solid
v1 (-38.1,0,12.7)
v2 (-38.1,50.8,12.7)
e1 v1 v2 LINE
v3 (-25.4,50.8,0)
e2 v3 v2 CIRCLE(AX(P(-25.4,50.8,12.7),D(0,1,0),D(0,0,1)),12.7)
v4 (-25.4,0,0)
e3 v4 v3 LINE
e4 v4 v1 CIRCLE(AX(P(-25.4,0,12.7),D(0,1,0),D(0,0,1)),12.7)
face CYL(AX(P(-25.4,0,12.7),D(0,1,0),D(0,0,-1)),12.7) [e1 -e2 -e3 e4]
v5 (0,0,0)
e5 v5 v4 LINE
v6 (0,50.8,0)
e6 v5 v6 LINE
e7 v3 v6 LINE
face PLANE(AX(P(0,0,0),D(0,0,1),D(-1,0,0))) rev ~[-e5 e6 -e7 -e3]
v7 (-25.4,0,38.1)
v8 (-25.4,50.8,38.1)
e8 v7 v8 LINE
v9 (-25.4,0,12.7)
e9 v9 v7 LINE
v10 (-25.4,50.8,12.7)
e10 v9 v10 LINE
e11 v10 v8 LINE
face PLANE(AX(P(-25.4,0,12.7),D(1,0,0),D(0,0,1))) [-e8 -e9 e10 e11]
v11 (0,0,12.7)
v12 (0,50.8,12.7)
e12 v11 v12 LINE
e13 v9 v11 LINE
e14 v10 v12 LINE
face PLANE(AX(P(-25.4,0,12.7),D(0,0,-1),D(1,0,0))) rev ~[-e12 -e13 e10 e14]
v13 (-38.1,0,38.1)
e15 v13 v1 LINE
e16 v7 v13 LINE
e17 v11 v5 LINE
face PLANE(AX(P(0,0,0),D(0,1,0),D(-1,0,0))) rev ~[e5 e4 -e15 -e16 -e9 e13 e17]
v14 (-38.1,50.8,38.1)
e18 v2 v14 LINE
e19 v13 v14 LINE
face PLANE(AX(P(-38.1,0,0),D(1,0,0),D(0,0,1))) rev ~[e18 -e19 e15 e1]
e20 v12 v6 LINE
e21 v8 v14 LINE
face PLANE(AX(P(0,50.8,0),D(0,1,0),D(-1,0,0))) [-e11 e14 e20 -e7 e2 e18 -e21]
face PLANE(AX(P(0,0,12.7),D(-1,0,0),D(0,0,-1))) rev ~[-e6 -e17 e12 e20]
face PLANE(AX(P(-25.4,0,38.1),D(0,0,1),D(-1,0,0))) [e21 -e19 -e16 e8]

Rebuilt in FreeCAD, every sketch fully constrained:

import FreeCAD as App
import Part
import Sketcher

V = App.Vector
Q = App.Units.Quantity


def edges_at(feature, points):
    """Names of the edges that pass closest to the given points."""
    edges = feature.Shape.Edges
    near = lambda p: min(range(len(edges)), key=lambda i: edges[i].distToShape(Part.Vertex(*p))[0])
    return sorted({f"Edge{near(p) + 1}" for p in points})

doc = App.newDocument("Part")
params = doc.addObject("Spreadsheet::Sheet", "Params")
for row, (alias, value) in enumerate([
    ("sketch1_width", "1.5 in"),
    ("sketch1_width2", "0.5 in"),
    ("pad1_length", "2 in"),
    ("fillet_radius", "0.5 in"),
], start=1):
    params.set(f"A{row}", alias)
    params.set(f"B{row}", "=" + value)
    params.setAlias(f"B{row}", alias)

body = doc.addObject("PartDesign::Body", "Body")

sketch1 = doc.addObject("Sketcher::SketchObject", "Sketch")
body.addObject(sketch1)
sketch1.AttachmentSupport = (doc.XZ_Plane, [""])
sketch1.MapMode = "FlatFace"
sketch1.addGeometry([
    Part.LineSegment(V(0, 12.7, 0), V(0, 0, 0)),
    Part.LineSegment(V(0, 0, 0), V(-38.1, 0, 0)),
    Part.LineSegment(V(-38.1, 0, 0), V(-38.1, 38.1, 0)),
    Part.LineSegment(V(-38.1, 38.1, 0), V(-25.4, 38.1, 0)),
    Part.LineSegment(V(-25.4, 38.1, 0), V(-25.4, 12.7, 0)),
    Part.LineSegment(V(-25.4, 12.7, 0), V(0, 12.7, 0)),
], False)
sketch1.addConstraint([
    Sketcher.Constraint("Coincident", 0, 2, 1, 1),
    Sketcher.Constraint("Coincident", 1, 2, 2, 1),
    Sketcher.Constraint("Coincident", 2, 2, 3, 1),
    Sketcher.Constraint("Coincident", 3, 2, 4, 1),
    Sketcher.Constraint("Coincident", 4, 2, 5, 1),
    Sketcher.Constraint("Coincident", 5, 2, 0, 1),
    Sketcher.Constraint("Vertical", 0),
    Sketcher.Constraint("Horizontal", 1),
    Sketcher.Constraint("Vertical", 2),
    Sketcher.Constraint("Horizontal", 3),
    Sketcher.Constraint("Vertical", 4),
    Sketcher.Constraint("Horizontal", 5),
    Sketcher.Constraint("Coincident", 0, 2, -1, 1),
    Sketcher.Constraint("Equal", 3, 0),
    Sketcher.Constraint("Equal", 1, 2),
    Sketcher.Constraint("DistanceX", 1, 2, 1, 1, Q("1.5 in")),
    Sketcher.Constraint("DistanceX", 3, 1, 3, 2, Q("0.5 in")),
])
sketch1.setExpression("Constraints[15]", "Params.sketch1_width")
sketch1.setExpression("Constraints[16]", "Params.sketch1_width2")
pad1 = doc.addObject("PartDesign::Pad", "Pad")
body.addObject(pad1)
pad1.Profile = sketch1
pad1.setExpression("Length", "Params.pad1_length")
pad1.Reversed = True
doc.recompute()

fillet = doc.addObject("PartDesign::Fillet", "Fillet")
body.addObject(fillet)
fillet.Base = (pad1, edges_at(pad1, [(-38.1, 25.4, 0)]))
fillet.setExpression("Radius", "Params.fillet_radius")

doc.recompute()
